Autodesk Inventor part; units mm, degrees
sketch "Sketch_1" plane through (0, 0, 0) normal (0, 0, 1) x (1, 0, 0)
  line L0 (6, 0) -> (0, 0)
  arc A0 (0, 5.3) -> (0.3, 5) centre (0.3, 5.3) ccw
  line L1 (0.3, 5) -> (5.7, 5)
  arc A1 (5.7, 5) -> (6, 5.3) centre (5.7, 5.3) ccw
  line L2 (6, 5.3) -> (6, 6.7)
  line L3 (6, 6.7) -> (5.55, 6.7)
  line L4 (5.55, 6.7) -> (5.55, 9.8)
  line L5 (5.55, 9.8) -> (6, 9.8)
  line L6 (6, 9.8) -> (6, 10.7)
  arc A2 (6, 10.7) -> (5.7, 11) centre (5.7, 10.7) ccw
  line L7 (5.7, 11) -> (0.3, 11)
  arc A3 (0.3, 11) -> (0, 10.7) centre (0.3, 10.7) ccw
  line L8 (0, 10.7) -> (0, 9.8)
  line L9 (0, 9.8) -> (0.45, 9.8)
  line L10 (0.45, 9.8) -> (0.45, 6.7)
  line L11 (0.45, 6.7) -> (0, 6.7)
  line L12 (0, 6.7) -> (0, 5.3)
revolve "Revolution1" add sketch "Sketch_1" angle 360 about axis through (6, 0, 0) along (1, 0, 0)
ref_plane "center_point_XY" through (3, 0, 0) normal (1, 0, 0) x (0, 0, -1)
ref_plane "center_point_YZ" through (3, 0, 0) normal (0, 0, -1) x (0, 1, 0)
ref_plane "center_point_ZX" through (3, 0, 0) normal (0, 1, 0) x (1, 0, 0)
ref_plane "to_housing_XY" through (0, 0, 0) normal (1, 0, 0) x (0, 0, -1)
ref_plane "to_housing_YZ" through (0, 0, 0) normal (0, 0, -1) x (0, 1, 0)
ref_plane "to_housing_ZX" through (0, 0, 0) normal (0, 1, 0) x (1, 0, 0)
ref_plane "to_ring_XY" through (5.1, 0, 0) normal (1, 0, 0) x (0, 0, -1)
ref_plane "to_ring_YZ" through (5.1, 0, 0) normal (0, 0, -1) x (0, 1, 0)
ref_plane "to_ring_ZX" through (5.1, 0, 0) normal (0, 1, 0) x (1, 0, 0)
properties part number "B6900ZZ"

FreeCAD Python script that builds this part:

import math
import FreeCAD as App
import Part
import Sketcher
Q = App.Units.Quantity

doc = App.newDocument("Part")
body = doc.addObject("PartDesign::Body", "Body")

sketch1 = doc.addObject("Sketcher::SketchObject", "Sketch")
body.addObject(sketch1)
sketch1.AttachmentSupport = (doc.XY_Plane, [""])
sketch1.MapMode = "FlatFace"
sketch1.addGeometry([
    Part.LineSegment(App.Vector(0, 6.7, 0), App.Vector(0, 5.3, 0)),
    Part.ArcOfCircle(Part.Circle(App.Vector(0.3, 5.3, 0), App.Vector(0, 0, 1), 0.3), math.radians(180), math.radians(270)),
    Part.LineSegment(App.Vector(0.3, 5, 0), App.Vector(5.7, 5, 0)),
    Part.ArcOfCircle(Part.Circle(App.Vector(5.7, 5.3, 0), App.Vector(0, 0, 1), 0.3), math.radians(-90), math.radians(0)),
    Part.LineSegment(App.Vector(6, 5.3, 0), App.Vector(6, 6.7, 0)),
    Part.LineSegment(App.Vector(6, 6.7, 0), App.Vector(5.55, 6.7, 0)),
    Part.LineSegment(App.Vector(5.55, 6.7, 0), App.Vector(5.55, 9.8, 0)),
    Part.LineSegment(App.Vector(5.55, 9.8, 0), App.Vector(6, 9.8, 0)),
    Part.LineSegment(App.Vector(6, 9.8, 0), App.Vector(6, 10.7, 0)),
    Part.ArcOfCircle(Part.Circle(App.Vector(5.7, 10.7, 0), App.Vector(0, 0, 1), 0.3), math.radians(0), math.radians(90)),
    Part.LineSegment(App.Vector(5.7, 11, 0), App.Vector(0.3, 11, 0)),
    Part.ArcOfCircle(Part.Circle(App.Vector(0.3, 10.7, 0), App.Vector(0, 0, 1), 0.3), math.radians(90), math.radians(180)),
    Part.LineSegment(App.Vector(0, 10.7, 0), App.Vector(0, 9.8, 0)),
    Part.LineSegment(App.Vector(0, 9.8, 0), App.Vector(0.45, 9.8, 0)),
    Part.LineSegment(App.Vector(0.45, 9.8, 0), App.Vector(0.45, 6.7, 0)),
    Part.LineSegment(App.Vector(0.45, 6.7, 0), App.Vector(0, 6.7, 0)),
], False)
sketch1.addConstraint([
    Sketcher.Constraint("Tangent", 0, 2, 1, 1),
    Sketcher.Constraint("Tangent", 1, 2, 2, 1),
    Sketcher.Constraint("Tangent", 2, 2, 3, 1),
    Sketcher.Constraint("Tangent", 3, 2, 4, 1),
    Sketcher.Constraint("Coincident", 4, 2, 5, 1),
    Sketcher.Constraint("Coincident", 5, 2, 6, 1),
    Sketcher.Constraint("Coincident", 6, 2, 7, 1),
    Sketcher.Constraint("Coincident", 7, 2, 8, 1),
    Sketcher.Constraint("Tangent", 8, 2, 9, 1),
    Sketcher.Constraint("Tangent", 9, 2, 10, 1),
    Sketcher.Constraint("Tangent", 10, 2, 11, 1),
    Sketcher.Constraint("Tangent", 11, 2, 12, 1),
    Sketcher.Constraint("Coincident", 12, 2, 13, 1),
    Sketcher.Constraint("Coincident", 13, 2, 14, 1),
    Sketcher.Constraint("Coincident", 14, 2, 15, 1),
    Sketcher.Constraint("Coincident", 15, 2, 0, 1),
    Sketcher.Constraint("Vertical", 0),
    Sketcher.Constraint("Horizontal", 2),
    Sketcher.Constraint("Vertical", 4),
    Sketcher.Constraint("Horizontal", 5),
    Sketcher.Constraint("Vertical", 6),
    Sketcher.Constraint("Horizontal", 7),
    Sketcher.Constraint("Vertical", 8),
    Sketcher.Constraint("Horizontal", 10),
    Sketcher.Constraint("Vertical", 12),
    Sketcher.Constraint("Horizontal", 13),
    Sketcher.Constraint("Vertical", 14),
    Sketcher.Constraint("Horizontal", 15),
    Sketcher.Constraint("Equal", 1, 3),
    Sketcher.Constraint("Equal", 3, 9),
    Sketcher.Constraint("Equal", 9, 11),
    Sketcher.Constraint("PointOnObject", 0, 2, -2),
    Sketcher.Constraint("PointOnObject", 11, 2, -2),
    Sketcher.Constraint("Horizontal", 7, 2, 12, 2),
    Sketcher.Constraint("Horizontal", 5, 2, 14, 2),
    Sketcher.Constraint("Vertical", 3, 3, 9, 3),
    Sketcher.Constraint("Equal", 7, 13),
    Sketcher.Constraint("Radius", 1, Q("0.3 mm")),
    Sketcher.Constraint("DistanceX", 2, 1, 2, 2, Q("5.4 mm")),
    Sketcher.Constraint("DistanceY", 0, 2, 0, 1, Q("1.4 mm")),
    Sketcher.Constraint("DistanceY", 6, 1, 6, 2, Q("3.1 mm")),
    Sketcher.Constraint("DistanceY", 8, 1, 8, 2, Q("0.9 mm")),
    Sketcher.Constraint("DistanceY", -1, 1, 1, 2, Q("5 mm")),
    Sketcher.Constraint("DistanceX", 5, 2, 5, 1, Q("0.45 mm")),
])
revolution = doc.addObject("PartDesign::Revolution", "Revolution")
body.addObject(revolution)
revolution.Profile = sketch1
revolution.ReferenceAxis = (sketch1, ["H_Axis"])
revolution.Angle = 360

doc.recompute()
